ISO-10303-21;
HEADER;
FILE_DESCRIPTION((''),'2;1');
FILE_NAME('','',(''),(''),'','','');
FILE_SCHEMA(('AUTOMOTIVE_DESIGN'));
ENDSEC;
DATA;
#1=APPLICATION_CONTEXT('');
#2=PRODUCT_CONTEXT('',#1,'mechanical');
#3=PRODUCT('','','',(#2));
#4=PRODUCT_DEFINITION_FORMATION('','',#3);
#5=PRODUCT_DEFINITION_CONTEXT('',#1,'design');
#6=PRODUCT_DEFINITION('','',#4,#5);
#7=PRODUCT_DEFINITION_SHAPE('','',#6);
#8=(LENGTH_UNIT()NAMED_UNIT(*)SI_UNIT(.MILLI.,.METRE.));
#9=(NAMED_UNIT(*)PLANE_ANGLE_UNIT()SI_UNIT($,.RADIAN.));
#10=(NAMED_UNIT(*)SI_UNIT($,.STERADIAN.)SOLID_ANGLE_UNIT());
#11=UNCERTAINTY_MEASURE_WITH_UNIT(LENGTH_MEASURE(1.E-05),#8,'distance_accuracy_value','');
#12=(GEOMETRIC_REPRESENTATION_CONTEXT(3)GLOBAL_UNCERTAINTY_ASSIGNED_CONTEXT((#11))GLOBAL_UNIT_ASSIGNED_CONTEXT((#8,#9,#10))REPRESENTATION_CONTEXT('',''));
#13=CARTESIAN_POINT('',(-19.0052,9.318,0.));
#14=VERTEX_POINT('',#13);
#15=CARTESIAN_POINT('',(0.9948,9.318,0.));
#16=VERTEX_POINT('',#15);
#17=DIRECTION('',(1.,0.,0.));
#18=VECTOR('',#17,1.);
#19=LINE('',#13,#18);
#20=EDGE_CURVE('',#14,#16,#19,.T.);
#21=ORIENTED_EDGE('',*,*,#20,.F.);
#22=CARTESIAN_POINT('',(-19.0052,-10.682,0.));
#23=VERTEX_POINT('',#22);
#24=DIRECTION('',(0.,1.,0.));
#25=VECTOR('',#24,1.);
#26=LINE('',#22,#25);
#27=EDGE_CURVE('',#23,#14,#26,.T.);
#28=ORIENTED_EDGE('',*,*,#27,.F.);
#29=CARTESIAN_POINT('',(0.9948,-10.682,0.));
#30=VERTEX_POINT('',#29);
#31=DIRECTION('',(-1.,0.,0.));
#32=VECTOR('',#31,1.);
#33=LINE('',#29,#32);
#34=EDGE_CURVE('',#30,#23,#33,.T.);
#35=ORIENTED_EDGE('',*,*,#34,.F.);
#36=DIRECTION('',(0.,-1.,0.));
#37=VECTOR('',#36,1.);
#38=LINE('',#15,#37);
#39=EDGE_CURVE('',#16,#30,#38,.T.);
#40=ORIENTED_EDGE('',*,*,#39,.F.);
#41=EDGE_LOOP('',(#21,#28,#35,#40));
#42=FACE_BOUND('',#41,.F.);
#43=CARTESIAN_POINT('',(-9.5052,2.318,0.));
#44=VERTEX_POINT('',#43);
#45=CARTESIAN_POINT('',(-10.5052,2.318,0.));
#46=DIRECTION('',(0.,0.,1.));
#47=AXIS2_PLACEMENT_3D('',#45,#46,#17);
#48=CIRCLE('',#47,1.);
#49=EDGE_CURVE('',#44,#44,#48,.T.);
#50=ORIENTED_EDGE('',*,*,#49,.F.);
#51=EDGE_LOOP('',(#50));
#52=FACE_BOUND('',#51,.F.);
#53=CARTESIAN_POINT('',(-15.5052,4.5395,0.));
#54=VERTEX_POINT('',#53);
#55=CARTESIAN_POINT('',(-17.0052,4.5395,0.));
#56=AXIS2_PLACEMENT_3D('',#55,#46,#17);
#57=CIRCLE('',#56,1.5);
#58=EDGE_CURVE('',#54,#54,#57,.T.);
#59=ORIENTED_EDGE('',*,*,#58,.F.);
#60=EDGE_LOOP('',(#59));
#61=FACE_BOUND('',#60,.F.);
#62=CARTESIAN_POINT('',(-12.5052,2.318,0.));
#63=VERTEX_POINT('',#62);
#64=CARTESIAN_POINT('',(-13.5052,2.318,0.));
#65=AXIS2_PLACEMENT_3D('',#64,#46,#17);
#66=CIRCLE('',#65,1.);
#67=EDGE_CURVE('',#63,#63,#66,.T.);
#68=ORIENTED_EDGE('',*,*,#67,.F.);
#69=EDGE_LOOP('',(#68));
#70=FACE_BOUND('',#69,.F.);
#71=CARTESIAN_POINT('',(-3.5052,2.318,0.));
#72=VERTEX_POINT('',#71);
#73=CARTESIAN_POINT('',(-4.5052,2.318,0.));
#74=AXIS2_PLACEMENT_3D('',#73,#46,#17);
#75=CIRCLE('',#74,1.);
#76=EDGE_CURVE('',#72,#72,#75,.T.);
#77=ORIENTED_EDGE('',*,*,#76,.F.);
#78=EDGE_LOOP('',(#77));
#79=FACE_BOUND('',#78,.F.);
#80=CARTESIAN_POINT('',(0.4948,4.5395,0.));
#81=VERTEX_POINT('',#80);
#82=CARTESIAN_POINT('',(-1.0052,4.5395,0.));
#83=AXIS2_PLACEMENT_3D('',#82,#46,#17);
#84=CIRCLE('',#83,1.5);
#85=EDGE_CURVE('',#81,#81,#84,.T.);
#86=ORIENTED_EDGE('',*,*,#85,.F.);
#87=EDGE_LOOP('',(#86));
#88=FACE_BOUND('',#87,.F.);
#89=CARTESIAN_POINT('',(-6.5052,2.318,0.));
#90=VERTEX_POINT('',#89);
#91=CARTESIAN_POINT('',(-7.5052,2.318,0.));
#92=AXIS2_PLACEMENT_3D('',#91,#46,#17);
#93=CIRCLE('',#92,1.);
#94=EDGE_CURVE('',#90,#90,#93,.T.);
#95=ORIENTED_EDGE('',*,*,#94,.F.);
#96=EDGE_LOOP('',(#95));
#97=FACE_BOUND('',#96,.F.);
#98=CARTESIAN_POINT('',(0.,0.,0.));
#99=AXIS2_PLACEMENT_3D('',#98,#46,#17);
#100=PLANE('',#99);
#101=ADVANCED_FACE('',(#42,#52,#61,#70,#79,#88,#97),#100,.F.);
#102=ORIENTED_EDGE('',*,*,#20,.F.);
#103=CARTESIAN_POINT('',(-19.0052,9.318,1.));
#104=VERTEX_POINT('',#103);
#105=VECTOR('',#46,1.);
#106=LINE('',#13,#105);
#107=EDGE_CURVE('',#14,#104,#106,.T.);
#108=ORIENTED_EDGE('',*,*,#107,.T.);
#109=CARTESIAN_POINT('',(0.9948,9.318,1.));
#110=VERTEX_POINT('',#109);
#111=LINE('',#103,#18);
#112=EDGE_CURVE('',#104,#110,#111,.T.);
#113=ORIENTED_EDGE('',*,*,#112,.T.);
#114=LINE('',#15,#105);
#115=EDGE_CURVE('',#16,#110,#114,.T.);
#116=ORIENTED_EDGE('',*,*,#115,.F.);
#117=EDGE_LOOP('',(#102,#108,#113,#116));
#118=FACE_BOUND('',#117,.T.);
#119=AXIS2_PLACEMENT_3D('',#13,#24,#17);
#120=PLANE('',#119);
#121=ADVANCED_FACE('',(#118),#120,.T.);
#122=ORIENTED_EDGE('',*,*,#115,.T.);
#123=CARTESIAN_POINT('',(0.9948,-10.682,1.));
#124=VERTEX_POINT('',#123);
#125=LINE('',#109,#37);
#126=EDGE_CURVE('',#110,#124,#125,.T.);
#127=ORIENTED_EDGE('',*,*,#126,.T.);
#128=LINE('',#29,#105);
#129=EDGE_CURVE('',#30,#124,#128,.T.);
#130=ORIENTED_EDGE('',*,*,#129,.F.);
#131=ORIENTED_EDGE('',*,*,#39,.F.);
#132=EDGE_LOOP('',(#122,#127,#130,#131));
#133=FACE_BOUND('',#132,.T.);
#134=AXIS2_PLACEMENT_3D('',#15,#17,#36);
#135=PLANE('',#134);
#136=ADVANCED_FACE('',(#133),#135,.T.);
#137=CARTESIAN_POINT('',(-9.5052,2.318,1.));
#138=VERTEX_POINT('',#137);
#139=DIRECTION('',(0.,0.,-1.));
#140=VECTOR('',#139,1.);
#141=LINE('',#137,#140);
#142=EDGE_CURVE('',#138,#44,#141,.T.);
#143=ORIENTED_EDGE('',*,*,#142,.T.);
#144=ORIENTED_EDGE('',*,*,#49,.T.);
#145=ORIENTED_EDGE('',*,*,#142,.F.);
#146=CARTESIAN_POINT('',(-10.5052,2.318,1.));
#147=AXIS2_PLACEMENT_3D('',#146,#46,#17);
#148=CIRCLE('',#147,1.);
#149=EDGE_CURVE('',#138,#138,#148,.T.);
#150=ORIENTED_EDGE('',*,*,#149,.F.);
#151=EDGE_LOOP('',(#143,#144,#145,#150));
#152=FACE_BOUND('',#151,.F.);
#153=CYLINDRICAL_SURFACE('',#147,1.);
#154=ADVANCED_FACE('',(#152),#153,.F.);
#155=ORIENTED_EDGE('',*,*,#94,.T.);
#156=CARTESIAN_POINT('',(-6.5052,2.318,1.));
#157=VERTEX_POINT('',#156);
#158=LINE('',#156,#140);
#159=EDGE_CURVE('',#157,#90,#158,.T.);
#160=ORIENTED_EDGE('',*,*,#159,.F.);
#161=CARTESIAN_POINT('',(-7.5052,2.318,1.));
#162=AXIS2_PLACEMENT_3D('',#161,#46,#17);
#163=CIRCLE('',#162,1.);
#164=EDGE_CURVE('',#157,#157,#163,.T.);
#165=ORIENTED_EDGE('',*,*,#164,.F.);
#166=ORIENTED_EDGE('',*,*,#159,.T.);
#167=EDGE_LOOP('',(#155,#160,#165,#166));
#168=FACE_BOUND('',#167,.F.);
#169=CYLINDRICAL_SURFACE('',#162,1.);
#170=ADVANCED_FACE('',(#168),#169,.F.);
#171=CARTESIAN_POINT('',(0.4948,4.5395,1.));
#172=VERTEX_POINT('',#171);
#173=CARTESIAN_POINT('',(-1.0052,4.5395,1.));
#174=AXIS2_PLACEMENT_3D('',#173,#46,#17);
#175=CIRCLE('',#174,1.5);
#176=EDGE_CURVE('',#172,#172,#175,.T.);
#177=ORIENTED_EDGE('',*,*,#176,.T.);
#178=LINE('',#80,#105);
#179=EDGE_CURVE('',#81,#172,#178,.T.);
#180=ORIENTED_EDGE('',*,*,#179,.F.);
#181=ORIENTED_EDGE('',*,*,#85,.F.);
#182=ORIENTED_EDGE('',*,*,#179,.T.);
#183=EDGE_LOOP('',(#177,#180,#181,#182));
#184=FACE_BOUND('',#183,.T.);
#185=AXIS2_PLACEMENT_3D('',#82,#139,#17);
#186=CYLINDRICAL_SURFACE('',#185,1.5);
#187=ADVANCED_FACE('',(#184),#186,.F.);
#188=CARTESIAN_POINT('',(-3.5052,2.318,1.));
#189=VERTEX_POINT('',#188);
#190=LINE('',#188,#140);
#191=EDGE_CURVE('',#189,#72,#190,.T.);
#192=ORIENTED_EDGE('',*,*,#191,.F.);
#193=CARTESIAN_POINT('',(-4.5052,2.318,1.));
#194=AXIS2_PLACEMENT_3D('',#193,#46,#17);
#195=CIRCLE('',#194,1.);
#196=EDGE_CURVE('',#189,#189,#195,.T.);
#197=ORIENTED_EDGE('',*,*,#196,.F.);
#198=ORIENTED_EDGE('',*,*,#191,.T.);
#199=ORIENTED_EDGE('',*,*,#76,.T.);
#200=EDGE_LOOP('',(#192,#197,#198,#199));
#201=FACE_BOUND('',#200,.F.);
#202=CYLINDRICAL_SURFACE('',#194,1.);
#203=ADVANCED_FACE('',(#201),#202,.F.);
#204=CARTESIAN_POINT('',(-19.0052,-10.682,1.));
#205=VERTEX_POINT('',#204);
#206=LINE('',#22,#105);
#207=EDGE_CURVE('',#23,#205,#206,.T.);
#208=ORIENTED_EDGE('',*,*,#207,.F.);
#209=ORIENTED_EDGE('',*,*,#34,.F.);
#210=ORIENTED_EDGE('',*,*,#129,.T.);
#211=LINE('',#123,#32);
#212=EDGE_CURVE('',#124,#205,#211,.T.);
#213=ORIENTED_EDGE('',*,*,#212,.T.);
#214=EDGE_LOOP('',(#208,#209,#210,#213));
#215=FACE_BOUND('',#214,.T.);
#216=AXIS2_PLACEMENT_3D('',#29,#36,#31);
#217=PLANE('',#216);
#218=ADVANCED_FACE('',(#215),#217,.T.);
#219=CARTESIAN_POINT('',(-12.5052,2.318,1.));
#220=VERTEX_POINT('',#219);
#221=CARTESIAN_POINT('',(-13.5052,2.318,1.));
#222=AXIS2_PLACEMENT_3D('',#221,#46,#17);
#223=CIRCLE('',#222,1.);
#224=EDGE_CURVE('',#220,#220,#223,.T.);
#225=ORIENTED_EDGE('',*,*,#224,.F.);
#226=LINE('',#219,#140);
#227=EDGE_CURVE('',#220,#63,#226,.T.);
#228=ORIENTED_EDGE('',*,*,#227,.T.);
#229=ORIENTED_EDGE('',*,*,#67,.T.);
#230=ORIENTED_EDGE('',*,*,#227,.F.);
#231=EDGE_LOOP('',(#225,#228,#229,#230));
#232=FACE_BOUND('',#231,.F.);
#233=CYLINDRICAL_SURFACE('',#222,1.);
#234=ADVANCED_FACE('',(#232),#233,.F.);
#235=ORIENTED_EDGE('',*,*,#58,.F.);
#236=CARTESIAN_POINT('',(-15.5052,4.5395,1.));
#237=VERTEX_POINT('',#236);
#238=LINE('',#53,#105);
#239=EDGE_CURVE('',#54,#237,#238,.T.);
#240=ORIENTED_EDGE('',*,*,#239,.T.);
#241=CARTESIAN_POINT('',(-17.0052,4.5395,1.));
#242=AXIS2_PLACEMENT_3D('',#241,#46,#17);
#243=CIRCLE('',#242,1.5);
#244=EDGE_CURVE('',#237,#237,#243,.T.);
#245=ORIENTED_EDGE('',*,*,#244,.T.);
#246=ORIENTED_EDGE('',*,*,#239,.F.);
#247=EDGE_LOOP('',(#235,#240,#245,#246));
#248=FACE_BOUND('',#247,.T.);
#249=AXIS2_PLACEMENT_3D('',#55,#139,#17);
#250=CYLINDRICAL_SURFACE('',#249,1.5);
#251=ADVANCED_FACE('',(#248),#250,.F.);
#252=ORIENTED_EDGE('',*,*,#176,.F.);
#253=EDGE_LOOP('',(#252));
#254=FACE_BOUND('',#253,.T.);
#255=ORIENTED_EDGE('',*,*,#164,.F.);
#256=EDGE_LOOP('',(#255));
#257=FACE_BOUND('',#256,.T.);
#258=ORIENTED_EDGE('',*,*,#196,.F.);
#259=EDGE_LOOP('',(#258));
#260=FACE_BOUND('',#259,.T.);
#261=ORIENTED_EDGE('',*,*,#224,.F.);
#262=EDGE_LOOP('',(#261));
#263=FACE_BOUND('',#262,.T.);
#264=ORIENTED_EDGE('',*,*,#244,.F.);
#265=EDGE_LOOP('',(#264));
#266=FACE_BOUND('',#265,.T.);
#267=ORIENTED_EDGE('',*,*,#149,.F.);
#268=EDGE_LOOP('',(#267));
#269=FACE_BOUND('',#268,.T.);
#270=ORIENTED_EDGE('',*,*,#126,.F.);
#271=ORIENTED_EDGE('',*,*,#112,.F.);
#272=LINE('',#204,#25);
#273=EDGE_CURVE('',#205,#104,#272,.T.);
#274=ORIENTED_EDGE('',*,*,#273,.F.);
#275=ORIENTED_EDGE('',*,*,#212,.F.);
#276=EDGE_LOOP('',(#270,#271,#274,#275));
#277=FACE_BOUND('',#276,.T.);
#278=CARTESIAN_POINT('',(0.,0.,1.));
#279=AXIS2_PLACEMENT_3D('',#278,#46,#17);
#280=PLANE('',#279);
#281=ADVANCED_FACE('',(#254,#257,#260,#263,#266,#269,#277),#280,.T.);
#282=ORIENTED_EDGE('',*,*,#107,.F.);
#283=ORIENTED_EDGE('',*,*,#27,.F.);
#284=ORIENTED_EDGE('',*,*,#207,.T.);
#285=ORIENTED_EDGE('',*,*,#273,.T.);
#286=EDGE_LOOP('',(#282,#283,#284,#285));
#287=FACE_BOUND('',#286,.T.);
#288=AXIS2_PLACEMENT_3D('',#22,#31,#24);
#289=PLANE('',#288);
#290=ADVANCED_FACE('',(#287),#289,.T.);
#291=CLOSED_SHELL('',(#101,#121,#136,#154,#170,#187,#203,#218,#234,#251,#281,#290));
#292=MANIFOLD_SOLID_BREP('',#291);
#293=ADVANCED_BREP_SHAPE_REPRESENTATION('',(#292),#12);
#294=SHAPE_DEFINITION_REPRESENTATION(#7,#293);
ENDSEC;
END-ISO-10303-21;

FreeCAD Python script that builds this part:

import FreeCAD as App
import Part
import Sketcher

V = App.Vector

doc = App.newDocument("Part")
body = doc.addObject("PartDesign::Body", "Body")

# Sketch on XY plane
sketch1 = body.newObject("Sketcher::SketchObject", "Sketch")
sketch1.AttachmentSupport = (doc.getObject("XY_Plane"), [""])
sketch1.MapMode = "FlatFace"
sketch1.addGeometry(Part.LineSegment(V(1, 9.3, 0), V(-19, 9.3, 0)), False)
sketch1.addGeometry(Part.LineSegment(V(-19, 9.3, 0), V(-19, -10.7, 0)), False)
sketch1.addGeometry(Part.LineSegment(V(-19, -10.7, 0), V(1, -10.7, 0)), False)
sketch1.addGeometry(Part.LineSegment(V(1, -10.7, 0), V(1, 9.3, 0)), False)
sketch1.addGeometry(Part.Circle(V(-17, 4.5, 0), V(0, 0, 1), 1.5), False)
sketch1.addGeometry(Part.Circle(V(-1, 4.5, 0), V(0, 0, 1), 1.5), False)
sketch1.addConstraint(Sketcher.Constraint("Coincident", 0, 2, 1, 1))
sketch1.addConstraint(Sketcher.Constraint("Coincident", 1, 2, 2, 1))
sketch1.addConstraint(Sketcher.Constraint("Coincident", 2, 2, 3, 1))
sketch1.addConstraint(Sketcher.Constraint("Coincident", 3, 2, 0, 1))
sketch1.addConstraint(Sketcher.Constraint("Horizontal", 0))
sketch1.addConstraint(Sketcher.Constraint("Vertical", 1))
sketch1.addConstraint(Sketcher.Constraint("Horizontal", 2))
sketch1.addConstraint(Sketcher.Constraint("Vertical", 3))
sketch1.addConstraint(Sketcher.Constraint("Equal", 4, 5))
sketch1.addConstraint(Sketcher.Constraint("Horizontal", 4, 3, 5, 3))
sketch1.addConstraint(Sketcher.Constraint("Equal", 2, 1))
sketch1.addConstraint(Sketcher.Constraint("Diameter", 4, 3.0))
sketch1.addConstraint(Sketcher.Constraint("DistanceX", 0, 2, 0, 1, 20.0))
sketch1.addConstraint(Sketcher.Constraint("DistanceX", 0, 2, 4, 3, 2.0))
sketch1.addConstraint(Sketcher.Constraint("DistanceX", 5, 3, 2, 2, 2.0))
sketch1.addConstraint(Sketcher.Constraint("DistanceY", -1, 1, 0, 2, 9.318))
sketch1.addConstraint(Sketcher.Constraint("DistanceX", 4, 3, -1, 1, 17.0052))
sketch1.addConstraint(Sketcher.Constraint("DistanceY", -1, 1, 4, 3, 4.5395))
pad1 = body.newObject("PartDesign::Pad", "Pad")
pad1.Profile = sketch1
pad1.Length = 1

# Sketch on XY plane
sketch2 = body.newObject("Sketcher::SketchObject", "Sketch001")
sketch2.AttachmentSupport = (doc.getObject("XY_Plane"), [""])
sketch2.MapMode = "FlatFace"
sketch2.AttachmentOffset = App.Placement(V(0, 0, 1), App.Rotation())
sketch2.addGeometry(Part.Circle(V(-13.5, 2.3, 0), V(0, 0, 1), 1), False)
sketch2.addGeometry(Part.Circle(V(-10.5, 2.3, 0), V(0, 0, 1), 1), False)
sketch2.addGeometry(Part.Circle(V(-4.5, 2.3, 0), V(0, 0, 1), 1), False)
sketch2.addGeometry(Part.Circle(V(-7.5, 2.3, 0), V(0, 0, 1), 1), False)
sketch2.addConstraint(Sketcher.Constraint("Equal", 0, 1))
sketch2.addConstraint(Sketcher.Constraint("Equal", 1, 2))
sketch2.addConstraint(Sketcher.Constraint("Equal", 2, 3))
sketch2.addConstraint(Sketcher.Constraint("Horizontal", 0, 3, 1, 3))
sketch2.addConstraint(Sketcher.Constraint("Horizontal", 1, 3, 2, 3))
sketch2.addConstraint(Sketcher.Constraint("Horizontal", 2, 3, 3, 3))
sketch2.addConstraint(Sketcher.Constraint("Diameter", 0, 2.0))
sketch2.addConstraint(Sketcher.Constraint("DistanceX", 0, 3, 1, 3, 3.0))
sketch2.addConstraint(Sketcher.Constraint("DistanceX", 1, 3, 3, 3, 3.0))
sketch2.addConstraint(Sketcher.Constraint("DistanceX", 3, 3, 2, 3, 3.0))
sketch2.addConstraint(Sketcher.Constraint("DistanceY", -1, 1, 0, 3, 2.318))
sketch2.addConstraint(Sketcher.Constraint("DistanceX", 0, 3, -1, 1, 13.5052))
pocket1 = body.newObject("PartDesign::Pocket", "Pocket")
pocket1.Profile = sketch2
pocket1.Length = 10

doc.recompute()
